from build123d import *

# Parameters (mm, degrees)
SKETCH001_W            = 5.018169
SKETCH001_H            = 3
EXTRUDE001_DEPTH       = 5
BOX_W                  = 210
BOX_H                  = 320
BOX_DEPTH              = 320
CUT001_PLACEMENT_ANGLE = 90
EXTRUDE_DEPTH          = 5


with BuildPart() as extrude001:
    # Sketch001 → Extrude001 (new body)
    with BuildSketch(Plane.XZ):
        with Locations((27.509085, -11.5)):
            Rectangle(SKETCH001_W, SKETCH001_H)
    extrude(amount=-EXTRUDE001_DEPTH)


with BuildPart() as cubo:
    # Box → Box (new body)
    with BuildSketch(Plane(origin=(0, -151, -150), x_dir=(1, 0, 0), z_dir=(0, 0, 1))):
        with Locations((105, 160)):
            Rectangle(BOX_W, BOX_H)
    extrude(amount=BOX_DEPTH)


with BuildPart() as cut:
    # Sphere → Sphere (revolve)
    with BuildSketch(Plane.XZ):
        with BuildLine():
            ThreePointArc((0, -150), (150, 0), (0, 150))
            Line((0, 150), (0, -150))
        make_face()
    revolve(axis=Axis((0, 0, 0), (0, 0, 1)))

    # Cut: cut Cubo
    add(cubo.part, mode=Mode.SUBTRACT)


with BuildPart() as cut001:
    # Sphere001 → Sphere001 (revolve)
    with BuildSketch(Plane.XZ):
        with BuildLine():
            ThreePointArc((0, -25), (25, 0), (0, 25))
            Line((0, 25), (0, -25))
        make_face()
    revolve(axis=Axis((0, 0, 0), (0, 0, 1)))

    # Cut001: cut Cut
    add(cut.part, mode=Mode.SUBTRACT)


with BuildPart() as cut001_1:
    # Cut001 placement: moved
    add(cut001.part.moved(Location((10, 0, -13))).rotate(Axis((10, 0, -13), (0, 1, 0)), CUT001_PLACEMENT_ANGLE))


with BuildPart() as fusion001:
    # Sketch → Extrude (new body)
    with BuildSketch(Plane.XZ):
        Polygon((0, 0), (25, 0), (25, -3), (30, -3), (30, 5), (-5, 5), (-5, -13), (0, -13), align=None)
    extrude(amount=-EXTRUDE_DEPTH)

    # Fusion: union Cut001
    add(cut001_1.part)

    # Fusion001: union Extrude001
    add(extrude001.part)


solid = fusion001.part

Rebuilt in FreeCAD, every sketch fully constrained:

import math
import FreeCAD as App
import Part
import Sketcher

V = App.Vector

doc = App.newDocument("Part")
body = doc.addObject("PartDesign::Body", "Body")

# Sketch on XZ plane
sketch1 = body.newObject("Sketcher::SketchObject", "Sketch")
sketch1.AttachmentSupport = (doc.getObject("XZ_Plane"), [""])
sketch1.MapMode = "FlatFace"
sketch1.addGeometry(Part.LineSegment(V(25, -10, 0), V(25, -13, 0)), False)
sketch1.addGeometry(Part.LineSegment(V(25, -13, 0), V(30, -13, 0)), False)
sketch1.addGeometry(Part.LineSegment(V(30, -13, 0), V(30, -10, 0)), False)
sketch1.addGeometry(Part.LineSegment(V(30, -10, 0), V(25, -10, 0)), False)
sketch1.addConstraint(Sketcher.Constraint("Coincident", 0, 2, 1, 1))
sketch1.addConstraint(Sketcher.Constraint("Coincident", 1, 2, 2, 1))
sketch1.addConstraint(Sketcher.Constraint("Coincident", 2, 2, 3, 1))
sketch1.addConstraint(Sketcher.Constraint("Coincident", 3, 2, 0, 1))
sketch1.addConstraint(Sketcher.Constraint("Vertical", 0))
sketch1.addConstraint(Sketcher.Constraint("Horizontal", 1))
sketch1.addConstraint(Sketcher.Constraint("Vertical", 2))
sketch1.addConstraint(Sketcher.Constraint("Horizontal", 3))
sketch1.addConstraint(Sketcher.Constraint("DistanceY", 0, 2, 0, 1, 3.0))
sketch1.addConstraint(Sketcher.Constraint("DistanceX", -1, 1, 0, 2, 25.0))
sketch1.addConstraint(Sketcher.Constraint("DistanceY", 0, 2, -1, 1, 13.0))
sketch1.addConstraint(Sketcher.Constraint("DistanceX", 1, 1, 1, 2, 5.018169))
pad1 = body.newObject("PartDesign::Pad", "Pad")
pad1.Profile = sketch1
pad1.Length = 5
pad1.Reversed = True
body2 = doc.addObject("PartDesign::Body", "Body001")

# Sketch on XY plane
sketch2 = body2.newObject("Sketcher::SketchObject", "Sketch001")
sketch2.AttachmentSupport = (doc.getObject("XY_Plane001"), [""])
sketch2.MapMode = "FlatFace"
sketch2.AttachmentOffset = App.Placement(V(0, 0, -150), App.Rotation())
sketch2.addGeometry(Part.LineSegment(V(0, 169, 0), V(0, -151, 0)), False)
sketch2.addGeometry(Part.LineSegment(V(0, -151, 0), V(210, -151, 0)), False)
sketch2.addGeometry(Part.LineSegment(V(210, -151, 0), V(210, 169, 0)), False)
sketch2.addGeometry(Part.LineSegment(V(210, 169, 0), V(0, 169, 0)), False)
sketch2.addConstraint(Sketcher.Constraint("Coincident", 0, 2, 1, 1))
sketch2.addConstraint(Sketcher.Constraint("Coincident", 1, 2, 2, 1))
sketch2.addConstraint(Sketcher.Constraint("Coincident", 2, 2, 3, 1))
sketch2.addConstraint(Sketcher.Constraint("Coincident", 3, 2, 0, 1))
sketch2.addConstraint(Sketcher.Constraint("Vertical", 0))
sketch2.addConstraint(Sketcher.Constraint("Horizontal", 1))
sketch2.addConstraint(Sketcher.Constraint("Vertical", 2))
sketch2.addConstraint(Sketcher.Constraint("Horizontal", 3))
sketch2.addConstraint(Sketcher.Constraint("PointOnObject", 0, 2, -2))
sketch2.addConstraint(Sketcher.Constraint("DistanceX", 1, 1, 1, 2, 210.0))
sketch2.addConstraint(Sketcher.Constraint("DistanceY", 0, 2, 0, 1, 320.0))
sketch2.addConstraint(Sketcher.Constraint("DistanceY", 0, 2, -1, 1, 151.0))
pad2 = body2.newObject("PartDesign::Pad", "Pad001")
pad2.Profile = sketch2
pad2.Length = 320
body3 = doc.addObject("PartDesign::Body", "Body002")

# Sketch on XZ plane
sketch3 = body3.newObject("Sketcher::SketchObject", "Sketch002")
sketch3.AttachmentSupport = (doc.getObject("XZ_Plane002"), [""])
sketch3.MapMode = "FlatFace"
sketch3.addGeometry(Part.ArcOfCircle(Part.Circle(V(0, 0, 0), V(0, 0, 1), 150), math.radians(-90), math.radians(90)), False)
sketch3.addGeometry(Part.LineSegment(V(0, 150, 0), V(0, -150, 0)), False)
sketch3.addConstraint(Sketcher.Constraint("Coincident", 0, 1, 1, 2))
sketch3.addConstraint(Sketcher.Constraint("Coincident", 1, 1, 0, 2))
sketch3.addConstraint(Sketcher.Constraint("Vertical", 1))
sketch3.addConstraint(Sketcher.Constraint("Coincident", 0, 3, -1, 1))
sketch3.addConstraint(Sketcher.Constraint("PointOnObject", 0, 1, -2))
sketch3.addConstraint(Sketcher.Constraint("Radius", 0, 150.0))
revolution = body3.newObject("PartDesign::Revolution", "Revolution")
revolution.Profile = sketch3
revolution.ReferenceAxis = (sketch3, ["V_Axis"])
revolution.Angle = 360
doc.recompute()

boolean = body3.newObject("PartDesign::Boolean", "Boolean")
boolean.Type = "Cut"
boolean.addObjects([body2])
body4 = doc.addObject("PartDesign::Body", "Body003")

# Sketch on XZ plane
sketch4 = body4.newObject("Sketcher::SketchObject", "Sketch003")
sketch4.AttachmentSupport = (doc.getObject("XZ_Plane003"), [""])
sketch4.MapMode = "FlatFace"
sketch4.addGeometry(Part.ArcOfCircle(Part.Circle(V(0, 0, 0), V(0, 0, 1), 25), math.radians(-90), math.radians(90)), False)
sketch4.addGeometry(Part.LineSegment(V(0, 25, 0), V(0, -25, 0)), False)
sketch4.addConstraint(Sketcher.Constraint("Coincident", 0, 1, 1, 2))
sketch4.addConstraint(Sketcher.Constraint("Coincident", 1, 1, 0, 2))
sketch4.addConstraint(Sketcher.Constraint("Vertical", 1))
sketch4.addConstraint(Sketcher.Constraint("Coincident", 0, 3, -1, 1))
sketch4.addConstraint(Sketcher.Constraint("PointOnObject", 0, 1, -2))
sketch4.addConstraint(Sketcher.Constraint("Radius", 0, 25.0))
revolution2 = body4.newObject("PartDesign::Revolution", "Revolution001")
revolution2.Profile = sketch4
revolution2.ReferenceAxis = (sketch4, ["V_Axis"])
revolution2.Angle = 360
doc.recompute()

boolean2 = body4.newObject("PartDesign::Boolean", "Boolean001")
boolean2.Type = "Cut"
boolean2.addObjects([body3])
body5 = doc.addObject("PartDesign::Body", "Body004")
doc.recompute()

body4.Placement = App.Placement(V(10, 0, -13), App.Rotation(V(0, 1, 0), 90))
boolean3 = body5.newObject("PartDesign::Boolean", "Boolean002")
boolean3.Type = "Fuse"
boolean3.addObjects([body4])
body6 = doc.addObject("PartDesign::Body", "Body005")

# Sketch on XZ plane
sketch5 = body6.newObject("Sketcher::SketchObject", "Sketch004")
sketch5.AttachmentSupport = (doc.getObject("XZ_Plane005"), [""])
sketch5.MapMode = "FlatFace"
sketch5.addGeometry(Part.LineSegment(V(0, 0, 0), V(25, 0, 0)), False)
sketch5.addGeometry(Part.LineSegment(V(25, 0, 0), V(25, -3, 0)), False)
sketch5.addGeometry(Part.LineSegment(V(25, -3, 0), V(30, -3, 0)), False)
sketch5.addGeometry(Part.LineSegment(V(30, -3, 0), V(30, 5, 0)), False)
sketch5.addGeometry(Part.LineSegment(V(30, 5, 0), V(-5, 5, 0)), False)
sketch5.addGeometry(Part.LineSegment(V(-5, 5, 0), V(-5, -13, 0)), False)
sketch5.addGeometry(Part.LineSegment(V(-5, -13, 0), V(0, -13, 0)), False)
sketch5.addGeometry(Part.LineSegment(V(0, -13, 0), V(0, 0, 0)), False)
sketch5.addConstraint(Sketcher.Constraint("Coincident", 0, 2, 1, 1))
sketch5.addConstraint(Sketcher.Constraint("Coincident", 1, 2, 2, 1))
sketch5.addConstraint(Sketcher.Constraint("Coincident", 2, 2, 3, 1))
sketch5.addConstraint(Sketcher.Constraint("Coincident", 3, 2, 4, 1))
sketch5.addConstraint(Sketcher.Constraint("Coincident", 4, 2, 5, 1))
sketch5.addConstraint(Sketcher.Constraint("Coincident", 5, 2, 6, 1))
sketch5.addConstraint(Sketcher.Constraint("Coincident", 6, 2, 7, 1))
sketch5.addConstraint(Sketcher.Constraint("Coincident", 7, 2, 0, 1))
sketch5.addConstraint(Sketcher.Constraint("Horizontal", 0))
sketch5.addConstraint(Sketcher.Constraint("Vertical", 1))
sketch5.addConstraint(Sketcher.Constraint("Horizontal", 2))
sketch5.addConstraint(Sketcher.Constraint("Vertical", 3))
sketch5.addConstraint(Sketcher.Constraint("Horizontal", 4))
sketch5.addConstraint(Sketcher.Constraint("Vertical", 5))
sketch5.addConstraint(Sketcher.Constraint("Horizontal", 6))
sketch5.addConstraint(Sketcher.Constraint("Vertical", 7))
sketch5.addConstraint(Sketcher.Constraint("Coincident", 7, 2, -1, 1))
sketch5.addConstraint(Sketcher.Constraint("Equal", 2, 6))
sketch5.addConstraint(Sketcher.Constraint("DistanceX", 0, 1, 0, 2, 25.0))
sketch5.addConstraint(Sketcher.Constraint("DistanceX", 2, 1, 2, 2, 5.0))
sketch5.addConstraint(Sketcher.Constraint("DistanceY", 1, 2, 1, 1, 3.0))
sketch5.addConstraint(Sketcher.Constraint("DistanceY", 3, 1, 3, 2, 8.0))
sketch5.addConstraint(Sketcher.Constraint("DistanceY", 5, 2, 5, 1, 18.0))
pad3 = body6.newObject("PartDesign::Pad", "Pad002")
pad3.Profile = sketch5
pad3.Length = 5
pad3.Reversed = True
doc.recompute()

boolean4 = body6.newObject("PartDesign::Boolean", "Boolean003")
boolean4.Type = "Fuse"
boolean4.addObjects([body5])
doc.recompute()

boolean5 = body6.newObject("PartDesign::Boolean", "Boolean004")
boolean5.Type = "Fuse"
boolean5.addObjects([body])

doc.recompute()
